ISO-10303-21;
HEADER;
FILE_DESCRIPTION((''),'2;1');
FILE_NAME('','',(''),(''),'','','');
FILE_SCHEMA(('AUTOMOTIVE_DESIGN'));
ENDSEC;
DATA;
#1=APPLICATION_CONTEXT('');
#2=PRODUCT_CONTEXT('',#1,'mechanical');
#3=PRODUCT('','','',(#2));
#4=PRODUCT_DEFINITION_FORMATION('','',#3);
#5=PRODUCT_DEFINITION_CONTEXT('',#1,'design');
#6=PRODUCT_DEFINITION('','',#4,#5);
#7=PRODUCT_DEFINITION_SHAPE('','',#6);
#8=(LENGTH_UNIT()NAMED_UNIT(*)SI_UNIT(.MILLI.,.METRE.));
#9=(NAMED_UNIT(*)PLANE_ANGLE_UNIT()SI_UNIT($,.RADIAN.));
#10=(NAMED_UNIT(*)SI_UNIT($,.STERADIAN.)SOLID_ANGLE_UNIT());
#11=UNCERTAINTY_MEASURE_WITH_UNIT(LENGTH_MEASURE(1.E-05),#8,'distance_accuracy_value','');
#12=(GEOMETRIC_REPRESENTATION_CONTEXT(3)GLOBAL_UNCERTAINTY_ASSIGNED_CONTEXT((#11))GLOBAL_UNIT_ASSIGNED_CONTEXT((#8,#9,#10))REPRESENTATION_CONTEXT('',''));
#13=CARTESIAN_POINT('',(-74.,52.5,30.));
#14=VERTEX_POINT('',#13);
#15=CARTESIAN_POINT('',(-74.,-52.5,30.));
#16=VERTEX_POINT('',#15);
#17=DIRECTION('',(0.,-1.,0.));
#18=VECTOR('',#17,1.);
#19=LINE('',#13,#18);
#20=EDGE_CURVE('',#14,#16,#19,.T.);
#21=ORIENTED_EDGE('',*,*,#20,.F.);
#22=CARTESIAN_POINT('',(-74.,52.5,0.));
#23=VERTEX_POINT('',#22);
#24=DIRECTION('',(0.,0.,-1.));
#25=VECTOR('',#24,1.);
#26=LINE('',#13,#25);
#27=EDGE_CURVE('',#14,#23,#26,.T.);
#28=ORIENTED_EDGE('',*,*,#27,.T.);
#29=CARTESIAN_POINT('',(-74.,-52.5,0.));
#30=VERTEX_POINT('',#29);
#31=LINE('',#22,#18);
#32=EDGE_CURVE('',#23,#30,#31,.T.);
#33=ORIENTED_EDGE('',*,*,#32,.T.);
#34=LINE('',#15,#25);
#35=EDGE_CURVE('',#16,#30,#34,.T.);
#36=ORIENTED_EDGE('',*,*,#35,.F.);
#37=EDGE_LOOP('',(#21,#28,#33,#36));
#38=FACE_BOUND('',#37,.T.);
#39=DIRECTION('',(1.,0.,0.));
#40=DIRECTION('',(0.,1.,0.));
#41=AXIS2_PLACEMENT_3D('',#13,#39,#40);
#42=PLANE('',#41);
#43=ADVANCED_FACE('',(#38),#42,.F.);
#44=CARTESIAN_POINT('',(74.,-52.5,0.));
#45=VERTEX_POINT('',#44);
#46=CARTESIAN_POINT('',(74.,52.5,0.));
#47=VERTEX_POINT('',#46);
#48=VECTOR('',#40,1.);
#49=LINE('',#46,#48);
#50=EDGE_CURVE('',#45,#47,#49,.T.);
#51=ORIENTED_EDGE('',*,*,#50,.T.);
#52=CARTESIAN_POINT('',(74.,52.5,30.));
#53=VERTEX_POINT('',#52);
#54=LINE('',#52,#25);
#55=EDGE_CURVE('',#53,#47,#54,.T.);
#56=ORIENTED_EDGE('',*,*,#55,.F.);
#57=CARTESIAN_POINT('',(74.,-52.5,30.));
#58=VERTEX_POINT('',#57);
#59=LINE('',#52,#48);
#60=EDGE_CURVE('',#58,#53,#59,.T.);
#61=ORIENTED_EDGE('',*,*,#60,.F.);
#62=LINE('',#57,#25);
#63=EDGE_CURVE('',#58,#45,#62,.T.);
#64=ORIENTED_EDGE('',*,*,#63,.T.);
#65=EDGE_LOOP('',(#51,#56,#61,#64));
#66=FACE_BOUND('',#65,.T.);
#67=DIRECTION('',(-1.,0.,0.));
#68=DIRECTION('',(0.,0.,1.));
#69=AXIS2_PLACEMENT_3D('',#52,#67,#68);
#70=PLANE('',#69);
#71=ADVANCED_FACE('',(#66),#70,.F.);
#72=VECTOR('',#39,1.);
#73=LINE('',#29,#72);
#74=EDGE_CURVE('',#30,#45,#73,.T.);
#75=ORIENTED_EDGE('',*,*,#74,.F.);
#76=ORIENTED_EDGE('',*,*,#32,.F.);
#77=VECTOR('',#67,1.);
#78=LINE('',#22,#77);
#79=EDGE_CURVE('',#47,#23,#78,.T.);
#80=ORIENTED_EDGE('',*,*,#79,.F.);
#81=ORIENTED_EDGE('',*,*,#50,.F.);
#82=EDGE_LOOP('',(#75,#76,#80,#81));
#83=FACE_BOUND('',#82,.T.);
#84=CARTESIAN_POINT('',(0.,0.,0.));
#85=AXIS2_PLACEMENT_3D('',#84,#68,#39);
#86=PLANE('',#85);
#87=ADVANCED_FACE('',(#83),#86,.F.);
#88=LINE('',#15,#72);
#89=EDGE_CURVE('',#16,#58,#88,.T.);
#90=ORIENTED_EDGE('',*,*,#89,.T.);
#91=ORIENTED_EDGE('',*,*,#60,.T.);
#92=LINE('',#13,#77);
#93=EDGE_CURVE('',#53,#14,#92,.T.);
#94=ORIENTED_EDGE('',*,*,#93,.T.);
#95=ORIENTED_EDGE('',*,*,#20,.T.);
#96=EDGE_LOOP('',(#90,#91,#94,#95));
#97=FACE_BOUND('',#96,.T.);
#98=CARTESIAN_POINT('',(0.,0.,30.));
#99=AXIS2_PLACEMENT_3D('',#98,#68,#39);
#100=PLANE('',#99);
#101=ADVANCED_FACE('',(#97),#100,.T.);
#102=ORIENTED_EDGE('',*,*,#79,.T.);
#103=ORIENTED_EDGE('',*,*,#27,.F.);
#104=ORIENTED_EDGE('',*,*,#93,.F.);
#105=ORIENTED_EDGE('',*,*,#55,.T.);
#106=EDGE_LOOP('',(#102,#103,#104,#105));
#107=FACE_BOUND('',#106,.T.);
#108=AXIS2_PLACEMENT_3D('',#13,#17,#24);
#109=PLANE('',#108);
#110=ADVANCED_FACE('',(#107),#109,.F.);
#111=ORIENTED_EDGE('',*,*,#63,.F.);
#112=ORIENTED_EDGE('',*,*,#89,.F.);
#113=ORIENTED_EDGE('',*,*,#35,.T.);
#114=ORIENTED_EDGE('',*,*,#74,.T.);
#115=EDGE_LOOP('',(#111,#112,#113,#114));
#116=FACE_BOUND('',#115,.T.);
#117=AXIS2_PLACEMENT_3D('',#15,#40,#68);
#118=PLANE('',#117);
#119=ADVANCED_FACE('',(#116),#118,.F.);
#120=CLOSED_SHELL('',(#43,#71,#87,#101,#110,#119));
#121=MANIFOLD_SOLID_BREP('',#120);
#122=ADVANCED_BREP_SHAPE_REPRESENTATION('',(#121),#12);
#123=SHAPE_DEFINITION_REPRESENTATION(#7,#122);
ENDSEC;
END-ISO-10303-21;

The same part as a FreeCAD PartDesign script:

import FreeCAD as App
import Part
import Sketcher
from FreeCAD import Vector
Q = App.Units.Quantity

doc = App.newDocument("Part")
body = doc.addObject("PartDesign::Body", "Body")

# Sketch on XY plane
sketch1 = doc.addObject("Sketcher::SketchObject", "Sketch")
body.addObject(sketch1)
sketch1.AttachmentSupport = (doc.XY_Plane, [""])
sketch1.MapMode = "FlatFace"
sketch1.addGeometry(Part.LineSegment(Vector(-74, 52.5, 0), Vector(-74, -52.5, 0)), False)
sketch1.addGeometry(Part.LineSegment(Vector(-74, -52.5, 0), Vector(74, -52.5, 0)), False)
sketch1.addGeometry(Part.LineSegment(Vector(74, -52.5, 0), Vector(74, 52.5, 0)), False)
sketch1.addGeometry(Part.LineSegment(Vector(74, 52.5, 0), Vector(-74, 52.5, 0)), False)
sketch1.addConstraint(Sketcher.Constraint("Coincident", 0, 2, 1, 1))
sketch1.addConstraint(Sketcher.Constraint("Coincident", 1, 2, 2, 1))
sketch1.addConstraint(Sketcher.Constraint("Coincident", 2, 2, 3, 1))
sketch1.addConstraint(Sketcher.Constraint("Coincident", 3, 2, 0, 1))
sketch1.addConstraint(Sketcher.Constraint("Vertical", 0))
sketch1.addConstraint(Sketcher.Constraint("Horizontal", 1))
sketch1.addConstraint(Sketcher.Constraint("Vertical", 2))
sketch1.addConstraint(Sketcher.Constraint("Horizontal", 3))
sketch1.addConstraint(Sketcher.Constraint("Symmetric", 0, 2, 2, 2, -1, 1))
sketch1.addConstraint(Sketcher.Constraint("DistanceX", 1, 1, 1, 2, Q("148 mm")))
sketch1.addConstraint(Sketcher.Constraint("DistanceY", 0, 2, 0, 1, Q("105 mm")))
pad1 = doc.addObject("PartDesign::Pad", "Pad")
body.addObject(pad1)
pad1.Profile = sketch1
pad1.Length = 30

doc.recompute()
